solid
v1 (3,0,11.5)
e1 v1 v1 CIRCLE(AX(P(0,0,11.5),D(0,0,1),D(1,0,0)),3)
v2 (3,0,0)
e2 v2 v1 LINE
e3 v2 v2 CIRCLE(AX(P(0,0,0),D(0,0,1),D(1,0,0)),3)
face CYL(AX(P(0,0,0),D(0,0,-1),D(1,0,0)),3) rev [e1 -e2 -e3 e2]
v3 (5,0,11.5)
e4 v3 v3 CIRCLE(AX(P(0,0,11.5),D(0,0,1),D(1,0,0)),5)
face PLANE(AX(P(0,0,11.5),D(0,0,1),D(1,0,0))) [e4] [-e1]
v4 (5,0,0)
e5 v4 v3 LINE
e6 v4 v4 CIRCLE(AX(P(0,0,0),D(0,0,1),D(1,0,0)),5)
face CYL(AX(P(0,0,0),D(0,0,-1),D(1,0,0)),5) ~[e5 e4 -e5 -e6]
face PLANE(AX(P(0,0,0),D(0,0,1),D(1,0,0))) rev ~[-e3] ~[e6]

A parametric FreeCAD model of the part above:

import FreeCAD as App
import Part
import Sketcher
from FreeCAD import Vector
Q = App.Units.Quantity

doc = App.newDocument("Part")
body = doc.addObject("PartDesign::Body", "Body")

sketch1 = doc.addObject("Sketcher::SketchObject", "Sketch")
body.addObject(sketch1)
sketch1.AttachmentSupport = (doc.XY_Plane, [""])
sketch1.MapMode = "FlatFace"
sketch1.addGeometry([
    Part.Circle(Vector(0, 0, 0), Vector(0, 0, 1), 5),
    Part.Circle(Vector(0, 0, 0), Vector(0, 0, 1), 3),
], False)
sketch1.addConstraint([
    Sketcher.Constraint("Coincident", 0, 3, -1, 1),
    Sketcher.Constraint("Coincident", 1, 3, -1, 1),
    Sketcher.Constraint("Diameter", 0, Q("10 mm")),
    Sketcher.Constraint("Diameter", 1, Q("6 mm")),
])
pad1 = doc.addObject("PartDesign::Pad", "Pad")
body.addObject(pad1)
pad1.Profile = sketch1
pad1.Length = 11.5

doc.recompute()
